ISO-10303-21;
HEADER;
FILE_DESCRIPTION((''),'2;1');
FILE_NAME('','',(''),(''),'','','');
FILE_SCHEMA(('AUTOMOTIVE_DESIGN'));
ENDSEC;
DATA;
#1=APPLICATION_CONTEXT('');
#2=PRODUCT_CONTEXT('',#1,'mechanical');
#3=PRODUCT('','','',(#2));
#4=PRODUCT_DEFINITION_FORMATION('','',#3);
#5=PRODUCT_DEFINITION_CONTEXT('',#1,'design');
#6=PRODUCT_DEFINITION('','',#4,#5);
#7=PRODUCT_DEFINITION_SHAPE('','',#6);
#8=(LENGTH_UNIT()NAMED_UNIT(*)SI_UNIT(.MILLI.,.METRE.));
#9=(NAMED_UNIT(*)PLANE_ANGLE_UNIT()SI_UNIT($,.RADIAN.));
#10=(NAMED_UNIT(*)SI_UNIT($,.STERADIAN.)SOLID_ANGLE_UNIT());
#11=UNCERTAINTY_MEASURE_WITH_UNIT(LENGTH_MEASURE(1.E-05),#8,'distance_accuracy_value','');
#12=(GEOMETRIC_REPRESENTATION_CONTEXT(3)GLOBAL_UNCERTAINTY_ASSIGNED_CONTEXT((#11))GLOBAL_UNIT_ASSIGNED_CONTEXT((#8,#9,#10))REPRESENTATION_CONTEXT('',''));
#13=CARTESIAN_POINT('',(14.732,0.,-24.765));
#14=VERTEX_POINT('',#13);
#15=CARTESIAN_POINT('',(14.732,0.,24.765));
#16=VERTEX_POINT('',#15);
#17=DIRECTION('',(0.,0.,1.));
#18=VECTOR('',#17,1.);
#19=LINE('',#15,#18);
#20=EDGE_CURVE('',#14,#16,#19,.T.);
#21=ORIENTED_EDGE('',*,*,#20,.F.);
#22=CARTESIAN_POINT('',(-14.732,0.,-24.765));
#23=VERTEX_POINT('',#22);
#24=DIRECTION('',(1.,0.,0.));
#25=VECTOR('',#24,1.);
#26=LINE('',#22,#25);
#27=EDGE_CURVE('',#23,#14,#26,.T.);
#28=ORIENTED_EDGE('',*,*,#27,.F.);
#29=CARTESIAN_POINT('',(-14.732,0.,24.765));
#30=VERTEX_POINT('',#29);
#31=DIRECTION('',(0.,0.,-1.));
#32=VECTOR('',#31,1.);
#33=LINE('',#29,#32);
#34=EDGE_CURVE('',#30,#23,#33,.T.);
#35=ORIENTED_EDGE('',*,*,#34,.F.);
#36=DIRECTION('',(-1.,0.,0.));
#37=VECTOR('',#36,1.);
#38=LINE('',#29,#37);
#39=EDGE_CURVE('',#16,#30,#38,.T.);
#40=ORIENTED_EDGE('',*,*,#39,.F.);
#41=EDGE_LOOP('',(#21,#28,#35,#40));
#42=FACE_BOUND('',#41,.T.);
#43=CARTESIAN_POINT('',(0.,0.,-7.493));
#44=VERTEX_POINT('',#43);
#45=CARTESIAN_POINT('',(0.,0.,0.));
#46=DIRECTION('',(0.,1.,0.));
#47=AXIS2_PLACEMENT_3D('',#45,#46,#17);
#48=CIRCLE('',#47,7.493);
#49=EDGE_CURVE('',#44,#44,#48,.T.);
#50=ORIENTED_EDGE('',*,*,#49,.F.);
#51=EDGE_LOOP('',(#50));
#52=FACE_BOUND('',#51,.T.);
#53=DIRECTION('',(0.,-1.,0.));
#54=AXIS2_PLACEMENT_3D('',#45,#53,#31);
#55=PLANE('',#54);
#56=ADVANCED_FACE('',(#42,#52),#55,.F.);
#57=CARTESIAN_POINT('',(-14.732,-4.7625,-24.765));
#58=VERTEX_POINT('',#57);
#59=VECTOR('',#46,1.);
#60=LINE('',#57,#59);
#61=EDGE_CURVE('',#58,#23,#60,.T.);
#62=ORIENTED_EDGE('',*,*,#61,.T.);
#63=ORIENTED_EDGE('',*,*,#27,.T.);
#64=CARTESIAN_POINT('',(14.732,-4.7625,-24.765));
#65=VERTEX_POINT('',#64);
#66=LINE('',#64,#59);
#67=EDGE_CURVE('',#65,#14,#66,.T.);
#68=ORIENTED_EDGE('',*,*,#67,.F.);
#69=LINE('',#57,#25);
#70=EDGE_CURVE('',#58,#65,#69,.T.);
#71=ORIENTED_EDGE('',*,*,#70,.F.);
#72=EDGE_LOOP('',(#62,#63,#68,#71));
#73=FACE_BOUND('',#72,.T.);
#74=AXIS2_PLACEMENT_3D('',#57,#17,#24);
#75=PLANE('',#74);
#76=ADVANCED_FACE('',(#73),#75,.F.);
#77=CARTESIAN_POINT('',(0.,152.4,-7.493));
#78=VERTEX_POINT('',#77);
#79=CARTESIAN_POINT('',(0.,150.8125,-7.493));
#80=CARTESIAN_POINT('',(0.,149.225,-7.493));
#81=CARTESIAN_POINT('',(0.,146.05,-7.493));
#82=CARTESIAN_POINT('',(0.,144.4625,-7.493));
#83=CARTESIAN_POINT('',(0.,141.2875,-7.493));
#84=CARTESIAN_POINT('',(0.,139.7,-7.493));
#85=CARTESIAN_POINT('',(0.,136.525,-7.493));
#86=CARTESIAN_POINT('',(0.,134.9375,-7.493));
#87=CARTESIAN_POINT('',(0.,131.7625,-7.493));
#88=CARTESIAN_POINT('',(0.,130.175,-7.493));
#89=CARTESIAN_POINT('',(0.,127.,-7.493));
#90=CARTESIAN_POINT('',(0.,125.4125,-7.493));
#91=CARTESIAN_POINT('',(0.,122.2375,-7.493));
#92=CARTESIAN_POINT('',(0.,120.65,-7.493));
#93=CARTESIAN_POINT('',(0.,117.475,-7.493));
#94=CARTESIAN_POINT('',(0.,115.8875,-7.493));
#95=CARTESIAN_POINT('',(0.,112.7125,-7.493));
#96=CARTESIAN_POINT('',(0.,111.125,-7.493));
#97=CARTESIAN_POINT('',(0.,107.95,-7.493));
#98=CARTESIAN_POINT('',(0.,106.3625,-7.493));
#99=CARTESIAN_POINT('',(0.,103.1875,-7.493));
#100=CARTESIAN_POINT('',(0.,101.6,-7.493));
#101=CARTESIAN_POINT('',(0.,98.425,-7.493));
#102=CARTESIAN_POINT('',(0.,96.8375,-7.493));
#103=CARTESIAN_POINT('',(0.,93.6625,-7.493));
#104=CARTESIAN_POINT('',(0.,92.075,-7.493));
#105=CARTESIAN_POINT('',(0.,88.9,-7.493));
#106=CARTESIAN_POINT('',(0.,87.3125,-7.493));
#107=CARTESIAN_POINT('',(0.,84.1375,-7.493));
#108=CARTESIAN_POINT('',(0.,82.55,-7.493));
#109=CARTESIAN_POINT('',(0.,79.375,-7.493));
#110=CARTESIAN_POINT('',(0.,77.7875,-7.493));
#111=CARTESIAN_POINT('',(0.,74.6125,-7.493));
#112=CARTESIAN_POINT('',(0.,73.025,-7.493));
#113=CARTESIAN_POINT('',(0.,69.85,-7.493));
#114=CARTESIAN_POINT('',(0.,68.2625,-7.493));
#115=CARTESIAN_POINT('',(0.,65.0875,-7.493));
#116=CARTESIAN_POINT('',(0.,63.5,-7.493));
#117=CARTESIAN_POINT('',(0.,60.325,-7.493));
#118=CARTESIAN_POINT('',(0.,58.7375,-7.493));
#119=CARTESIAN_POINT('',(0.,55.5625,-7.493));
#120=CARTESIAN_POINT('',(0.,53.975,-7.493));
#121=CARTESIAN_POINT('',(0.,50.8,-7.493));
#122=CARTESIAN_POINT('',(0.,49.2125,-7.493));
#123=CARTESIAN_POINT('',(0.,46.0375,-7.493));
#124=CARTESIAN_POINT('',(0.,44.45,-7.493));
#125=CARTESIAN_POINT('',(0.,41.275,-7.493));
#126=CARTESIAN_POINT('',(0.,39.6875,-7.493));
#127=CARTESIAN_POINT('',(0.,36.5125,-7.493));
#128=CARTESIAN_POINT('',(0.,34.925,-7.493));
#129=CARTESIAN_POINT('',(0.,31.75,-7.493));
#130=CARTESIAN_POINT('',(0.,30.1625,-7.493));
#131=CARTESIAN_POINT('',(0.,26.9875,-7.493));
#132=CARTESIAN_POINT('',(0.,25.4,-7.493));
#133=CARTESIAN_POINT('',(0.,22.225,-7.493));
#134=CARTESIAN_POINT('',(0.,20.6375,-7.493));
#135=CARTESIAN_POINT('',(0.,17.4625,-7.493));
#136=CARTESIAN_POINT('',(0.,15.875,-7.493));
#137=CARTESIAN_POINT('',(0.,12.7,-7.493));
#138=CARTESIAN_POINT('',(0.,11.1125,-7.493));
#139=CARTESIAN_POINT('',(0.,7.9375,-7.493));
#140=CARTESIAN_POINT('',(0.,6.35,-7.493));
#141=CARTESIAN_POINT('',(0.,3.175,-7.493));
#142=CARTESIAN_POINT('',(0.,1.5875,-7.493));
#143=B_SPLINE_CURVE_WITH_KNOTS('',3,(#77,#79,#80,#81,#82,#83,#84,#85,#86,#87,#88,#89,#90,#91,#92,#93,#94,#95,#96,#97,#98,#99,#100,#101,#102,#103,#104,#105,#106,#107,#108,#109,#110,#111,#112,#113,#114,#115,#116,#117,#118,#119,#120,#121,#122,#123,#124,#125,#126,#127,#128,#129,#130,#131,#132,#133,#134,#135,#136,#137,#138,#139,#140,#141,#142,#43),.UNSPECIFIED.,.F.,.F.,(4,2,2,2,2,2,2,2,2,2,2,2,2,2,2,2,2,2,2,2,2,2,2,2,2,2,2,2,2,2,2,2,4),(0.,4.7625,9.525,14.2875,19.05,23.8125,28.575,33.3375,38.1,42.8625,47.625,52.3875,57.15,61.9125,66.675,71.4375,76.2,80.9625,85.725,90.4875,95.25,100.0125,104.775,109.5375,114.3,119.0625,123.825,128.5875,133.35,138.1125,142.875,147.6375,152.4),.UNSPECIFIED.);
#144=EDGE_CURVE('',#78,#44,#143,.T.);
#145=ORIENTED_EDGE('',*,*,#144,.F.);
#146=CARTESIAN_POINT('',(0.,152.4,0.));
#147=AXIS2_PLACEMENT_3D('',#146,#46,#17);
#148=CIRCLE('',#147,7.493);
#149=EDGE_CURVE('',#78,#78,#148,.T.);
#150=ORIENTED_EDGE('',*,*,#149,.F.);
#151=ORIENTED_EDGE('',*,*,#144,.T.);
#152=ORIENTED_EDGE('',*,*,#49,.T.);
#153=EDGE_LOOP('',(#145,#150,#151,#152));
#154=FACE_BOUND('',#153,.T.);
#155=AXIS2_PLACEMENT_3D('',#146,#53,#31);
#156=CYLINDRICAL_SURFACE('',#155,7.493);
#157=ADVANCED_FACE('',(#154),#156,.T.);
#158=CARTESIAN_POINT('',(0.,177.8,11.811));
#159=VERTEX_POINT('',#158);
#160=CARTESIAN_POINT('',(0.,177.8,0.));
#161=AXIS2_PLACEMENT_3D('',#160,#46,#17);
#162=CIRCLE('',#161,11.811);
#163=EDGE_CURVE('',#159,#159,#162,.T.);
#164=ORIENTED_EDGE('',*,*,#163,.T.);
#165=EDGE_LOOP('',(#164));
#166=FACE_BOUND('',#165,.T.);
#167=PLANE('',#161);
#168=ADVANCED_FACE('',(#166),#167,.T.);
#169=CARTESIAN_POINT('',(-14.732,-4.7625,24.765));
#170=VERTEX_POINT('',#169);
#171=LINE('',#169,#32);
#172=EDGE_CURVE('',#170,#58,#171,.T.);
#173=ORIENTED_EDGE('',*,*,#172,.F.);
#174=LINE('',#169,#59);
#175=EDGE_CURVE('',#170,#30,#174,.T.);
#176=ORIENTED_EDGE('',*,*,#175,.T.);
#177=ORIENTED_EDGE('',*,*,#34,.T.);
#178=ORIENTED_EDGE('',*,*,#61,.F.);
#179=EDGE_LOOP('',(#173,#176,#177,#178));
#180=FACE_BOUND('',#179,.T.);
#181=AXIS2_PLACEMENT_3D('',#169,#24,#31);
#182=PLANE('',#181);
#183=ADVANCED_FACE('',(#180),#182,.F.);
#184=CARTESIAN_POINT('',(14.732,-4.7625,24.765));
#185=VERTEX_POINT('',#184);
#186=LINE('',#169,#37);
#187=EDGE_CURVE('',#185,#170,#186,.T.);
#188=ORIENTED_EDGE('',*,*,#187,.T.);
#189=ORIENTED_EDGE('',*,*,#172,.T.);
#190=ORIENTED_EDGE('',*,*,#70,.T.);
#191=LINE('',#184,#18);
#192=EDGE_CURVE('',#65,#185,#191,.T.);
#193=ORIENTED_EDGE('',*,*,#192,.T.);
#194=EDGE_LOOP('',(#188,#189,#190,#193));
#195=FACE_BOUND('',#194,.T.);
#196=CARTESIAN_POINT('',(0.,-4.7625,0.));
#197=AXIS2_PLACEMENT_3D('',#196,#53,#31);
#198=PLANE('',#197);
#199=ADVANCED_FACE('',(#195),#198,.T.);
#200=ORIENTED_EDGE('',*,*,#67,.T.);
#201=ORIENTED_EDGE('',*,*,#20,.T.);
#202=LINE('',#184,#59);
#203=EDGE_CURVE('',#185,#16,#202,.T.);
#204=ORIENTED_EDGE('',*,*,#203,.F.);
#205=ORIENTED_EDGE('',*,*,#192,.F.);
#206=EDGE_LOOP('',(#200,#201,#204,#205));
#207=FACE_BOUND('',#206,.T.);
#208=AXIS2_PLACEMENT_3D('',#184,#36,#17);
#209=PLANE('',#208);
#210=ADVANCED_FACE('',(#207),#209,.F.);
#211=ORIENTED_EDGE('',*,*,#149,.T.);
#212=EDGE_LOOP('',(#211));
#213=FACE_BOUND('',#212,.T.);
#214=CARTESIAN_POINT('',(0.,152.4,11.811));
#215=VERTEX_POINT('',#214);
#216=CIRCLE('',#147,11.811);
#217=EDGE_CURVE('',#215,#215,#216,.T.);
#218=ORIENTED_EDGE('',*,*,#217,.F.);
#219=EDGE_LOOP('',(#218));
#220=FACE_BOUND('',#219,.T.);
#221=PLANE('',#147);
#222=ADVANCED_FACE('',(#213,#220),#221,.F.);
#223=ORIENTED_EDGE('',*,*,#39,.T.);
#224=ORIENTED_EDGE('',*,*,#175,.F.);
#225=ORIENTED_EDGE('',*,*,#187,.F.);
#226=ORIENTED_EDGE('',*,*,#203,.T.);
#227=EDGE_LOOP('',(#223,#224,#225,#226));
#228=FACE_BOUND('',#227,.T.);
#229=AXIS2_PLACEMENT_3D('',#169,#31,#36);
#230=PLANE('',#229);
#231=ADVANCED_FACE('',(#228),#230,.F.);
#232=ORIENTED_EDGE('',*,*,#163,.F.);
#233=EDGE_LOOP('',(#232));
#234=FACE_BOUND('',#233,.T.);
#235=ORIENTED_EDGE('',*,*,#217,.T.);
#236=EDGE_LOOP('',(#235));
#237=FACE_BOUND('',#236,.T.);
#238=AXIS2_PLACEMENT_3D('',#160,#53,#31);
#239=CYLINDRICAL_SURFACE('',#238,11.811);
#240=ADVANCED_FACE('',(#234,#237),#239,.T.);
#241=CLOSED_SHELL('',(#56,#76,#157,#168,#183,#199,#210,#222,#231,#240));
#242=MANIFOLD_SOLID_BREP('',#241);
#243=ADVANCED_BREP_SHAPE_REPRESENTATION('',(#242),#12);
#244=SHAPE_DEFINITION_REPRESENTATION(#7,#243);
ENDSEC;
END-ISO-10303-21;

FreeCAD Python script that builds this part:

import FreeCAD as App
import Part
import Sketcher
from FreeCAD import Vector
Q = App.Units.Quantity


def add_polygon(sketch, points):
    """Adds a closed chain of lines whose ends are joined by coincident constraints."""
    first, n = sketch.GeometryCount, len(points)
    for a, b in zip(points, points[1:] + points[:1]):
        sketch.addGeometry(Part.LineSegment(App.Vector(*a, 0), App.Vector(*b, 0)), False)
    for i in range(n):
        sketch.addConstraint(Sketcher.Constraint("Coincident", first + i, 2, first + (i + 1) % n, 1))

doc = App.newDocument("Part")
body = doc.addObject("PartDesign::Body", "Body")

# Sketch on XZ plane
sketch1 = body.newObject("Sketcher::SketchObject", "Sketch")
sketch1.AttachmentSupport = (doc.getObject("XZ_Plane"), [""])
sketch1.MapMode = "FlatFace"
sketch1.addGeometry(Part.Circle(Vector(0, 0, 0), Vector(0, 0, 1), 7), False)
sketch1.addConstraint([
    Sketcher.Constraint("Coincident", 0, 3, -1, 1),
    Sketcher.Constraint("Diameter", 0, Q("0.59 in")),
])
pad1 = body.newObject("PartDesign::Pad", "Pad")
pad1.Profile = sketch1
pad1.Length = Q("6 in")
pad1.Reversed = True

# Sketch on XZ plane
sketch2 = body.newObject("Sketcher::SketchObject", "Sketch001")
sketch2.AttachmentSupport = (doc.getObject("XZ_Plane"), [""])
sketch2.MapMode = "FlatFace"
add_polygon(sketch2, [(-15, 25), (-15, -25), (15, -25), (15, 25)])  # lines 0-3
sketch2.addConstraint([
    Sketcher.Constraint("Vertical", 0),
    Sketcher.Constraint("Horizontal", 1),
    Sketcher.Constraint("Vertical", 2),
    Sketcher.Constraint("Horizontal", 3),
    Sketcher.Constraint("Symmetric", 0, 2, 2, 2, -1, 1),
    Sketcher.Constraint("DistanceX", 1, 1, 1, 2, Q("1.16 in")),
    Sketcher.Constraint("DistanceY", 0, 2, 0, 1, Q("1.95 in")),
])
pad2 = body.newObject("PartDesign::Pad", "Pad001")
pad2.Profile = sketch2
pad2.Length = Q("0.1875 in")

# Sketch on XZ plane
sketch3 = body.newObject("Sketcher::SketchObject", "Sketch002")
sketch3.AttachmentSupport = (doc.getObject("XZ_Plane"), [""])
sketch3.MapMode = "FlatFace"
sketch3.AttachmentOffset = App.Placement(Vector(0, 0, -6 * 25.4), App.Rotation())
sketch3.addGeometry(Part.Circle(Vector(0, 0, 0), Vector(0, 0, 1), 12), False)
sketch3.addConstraint([
    Sketcher.Constraint("Coincident", 0, 3, -1, 1),
    Sketcher.Constraint("Diameter", 0, Q("0.93 in")),
])
pad3 = body.newObject("PartDesign::Pad", "Pad002")
pad3.Profile = sketch3
pad3.Length = Q("1 in")
pad3.Reversed = True

doc.recompute()
